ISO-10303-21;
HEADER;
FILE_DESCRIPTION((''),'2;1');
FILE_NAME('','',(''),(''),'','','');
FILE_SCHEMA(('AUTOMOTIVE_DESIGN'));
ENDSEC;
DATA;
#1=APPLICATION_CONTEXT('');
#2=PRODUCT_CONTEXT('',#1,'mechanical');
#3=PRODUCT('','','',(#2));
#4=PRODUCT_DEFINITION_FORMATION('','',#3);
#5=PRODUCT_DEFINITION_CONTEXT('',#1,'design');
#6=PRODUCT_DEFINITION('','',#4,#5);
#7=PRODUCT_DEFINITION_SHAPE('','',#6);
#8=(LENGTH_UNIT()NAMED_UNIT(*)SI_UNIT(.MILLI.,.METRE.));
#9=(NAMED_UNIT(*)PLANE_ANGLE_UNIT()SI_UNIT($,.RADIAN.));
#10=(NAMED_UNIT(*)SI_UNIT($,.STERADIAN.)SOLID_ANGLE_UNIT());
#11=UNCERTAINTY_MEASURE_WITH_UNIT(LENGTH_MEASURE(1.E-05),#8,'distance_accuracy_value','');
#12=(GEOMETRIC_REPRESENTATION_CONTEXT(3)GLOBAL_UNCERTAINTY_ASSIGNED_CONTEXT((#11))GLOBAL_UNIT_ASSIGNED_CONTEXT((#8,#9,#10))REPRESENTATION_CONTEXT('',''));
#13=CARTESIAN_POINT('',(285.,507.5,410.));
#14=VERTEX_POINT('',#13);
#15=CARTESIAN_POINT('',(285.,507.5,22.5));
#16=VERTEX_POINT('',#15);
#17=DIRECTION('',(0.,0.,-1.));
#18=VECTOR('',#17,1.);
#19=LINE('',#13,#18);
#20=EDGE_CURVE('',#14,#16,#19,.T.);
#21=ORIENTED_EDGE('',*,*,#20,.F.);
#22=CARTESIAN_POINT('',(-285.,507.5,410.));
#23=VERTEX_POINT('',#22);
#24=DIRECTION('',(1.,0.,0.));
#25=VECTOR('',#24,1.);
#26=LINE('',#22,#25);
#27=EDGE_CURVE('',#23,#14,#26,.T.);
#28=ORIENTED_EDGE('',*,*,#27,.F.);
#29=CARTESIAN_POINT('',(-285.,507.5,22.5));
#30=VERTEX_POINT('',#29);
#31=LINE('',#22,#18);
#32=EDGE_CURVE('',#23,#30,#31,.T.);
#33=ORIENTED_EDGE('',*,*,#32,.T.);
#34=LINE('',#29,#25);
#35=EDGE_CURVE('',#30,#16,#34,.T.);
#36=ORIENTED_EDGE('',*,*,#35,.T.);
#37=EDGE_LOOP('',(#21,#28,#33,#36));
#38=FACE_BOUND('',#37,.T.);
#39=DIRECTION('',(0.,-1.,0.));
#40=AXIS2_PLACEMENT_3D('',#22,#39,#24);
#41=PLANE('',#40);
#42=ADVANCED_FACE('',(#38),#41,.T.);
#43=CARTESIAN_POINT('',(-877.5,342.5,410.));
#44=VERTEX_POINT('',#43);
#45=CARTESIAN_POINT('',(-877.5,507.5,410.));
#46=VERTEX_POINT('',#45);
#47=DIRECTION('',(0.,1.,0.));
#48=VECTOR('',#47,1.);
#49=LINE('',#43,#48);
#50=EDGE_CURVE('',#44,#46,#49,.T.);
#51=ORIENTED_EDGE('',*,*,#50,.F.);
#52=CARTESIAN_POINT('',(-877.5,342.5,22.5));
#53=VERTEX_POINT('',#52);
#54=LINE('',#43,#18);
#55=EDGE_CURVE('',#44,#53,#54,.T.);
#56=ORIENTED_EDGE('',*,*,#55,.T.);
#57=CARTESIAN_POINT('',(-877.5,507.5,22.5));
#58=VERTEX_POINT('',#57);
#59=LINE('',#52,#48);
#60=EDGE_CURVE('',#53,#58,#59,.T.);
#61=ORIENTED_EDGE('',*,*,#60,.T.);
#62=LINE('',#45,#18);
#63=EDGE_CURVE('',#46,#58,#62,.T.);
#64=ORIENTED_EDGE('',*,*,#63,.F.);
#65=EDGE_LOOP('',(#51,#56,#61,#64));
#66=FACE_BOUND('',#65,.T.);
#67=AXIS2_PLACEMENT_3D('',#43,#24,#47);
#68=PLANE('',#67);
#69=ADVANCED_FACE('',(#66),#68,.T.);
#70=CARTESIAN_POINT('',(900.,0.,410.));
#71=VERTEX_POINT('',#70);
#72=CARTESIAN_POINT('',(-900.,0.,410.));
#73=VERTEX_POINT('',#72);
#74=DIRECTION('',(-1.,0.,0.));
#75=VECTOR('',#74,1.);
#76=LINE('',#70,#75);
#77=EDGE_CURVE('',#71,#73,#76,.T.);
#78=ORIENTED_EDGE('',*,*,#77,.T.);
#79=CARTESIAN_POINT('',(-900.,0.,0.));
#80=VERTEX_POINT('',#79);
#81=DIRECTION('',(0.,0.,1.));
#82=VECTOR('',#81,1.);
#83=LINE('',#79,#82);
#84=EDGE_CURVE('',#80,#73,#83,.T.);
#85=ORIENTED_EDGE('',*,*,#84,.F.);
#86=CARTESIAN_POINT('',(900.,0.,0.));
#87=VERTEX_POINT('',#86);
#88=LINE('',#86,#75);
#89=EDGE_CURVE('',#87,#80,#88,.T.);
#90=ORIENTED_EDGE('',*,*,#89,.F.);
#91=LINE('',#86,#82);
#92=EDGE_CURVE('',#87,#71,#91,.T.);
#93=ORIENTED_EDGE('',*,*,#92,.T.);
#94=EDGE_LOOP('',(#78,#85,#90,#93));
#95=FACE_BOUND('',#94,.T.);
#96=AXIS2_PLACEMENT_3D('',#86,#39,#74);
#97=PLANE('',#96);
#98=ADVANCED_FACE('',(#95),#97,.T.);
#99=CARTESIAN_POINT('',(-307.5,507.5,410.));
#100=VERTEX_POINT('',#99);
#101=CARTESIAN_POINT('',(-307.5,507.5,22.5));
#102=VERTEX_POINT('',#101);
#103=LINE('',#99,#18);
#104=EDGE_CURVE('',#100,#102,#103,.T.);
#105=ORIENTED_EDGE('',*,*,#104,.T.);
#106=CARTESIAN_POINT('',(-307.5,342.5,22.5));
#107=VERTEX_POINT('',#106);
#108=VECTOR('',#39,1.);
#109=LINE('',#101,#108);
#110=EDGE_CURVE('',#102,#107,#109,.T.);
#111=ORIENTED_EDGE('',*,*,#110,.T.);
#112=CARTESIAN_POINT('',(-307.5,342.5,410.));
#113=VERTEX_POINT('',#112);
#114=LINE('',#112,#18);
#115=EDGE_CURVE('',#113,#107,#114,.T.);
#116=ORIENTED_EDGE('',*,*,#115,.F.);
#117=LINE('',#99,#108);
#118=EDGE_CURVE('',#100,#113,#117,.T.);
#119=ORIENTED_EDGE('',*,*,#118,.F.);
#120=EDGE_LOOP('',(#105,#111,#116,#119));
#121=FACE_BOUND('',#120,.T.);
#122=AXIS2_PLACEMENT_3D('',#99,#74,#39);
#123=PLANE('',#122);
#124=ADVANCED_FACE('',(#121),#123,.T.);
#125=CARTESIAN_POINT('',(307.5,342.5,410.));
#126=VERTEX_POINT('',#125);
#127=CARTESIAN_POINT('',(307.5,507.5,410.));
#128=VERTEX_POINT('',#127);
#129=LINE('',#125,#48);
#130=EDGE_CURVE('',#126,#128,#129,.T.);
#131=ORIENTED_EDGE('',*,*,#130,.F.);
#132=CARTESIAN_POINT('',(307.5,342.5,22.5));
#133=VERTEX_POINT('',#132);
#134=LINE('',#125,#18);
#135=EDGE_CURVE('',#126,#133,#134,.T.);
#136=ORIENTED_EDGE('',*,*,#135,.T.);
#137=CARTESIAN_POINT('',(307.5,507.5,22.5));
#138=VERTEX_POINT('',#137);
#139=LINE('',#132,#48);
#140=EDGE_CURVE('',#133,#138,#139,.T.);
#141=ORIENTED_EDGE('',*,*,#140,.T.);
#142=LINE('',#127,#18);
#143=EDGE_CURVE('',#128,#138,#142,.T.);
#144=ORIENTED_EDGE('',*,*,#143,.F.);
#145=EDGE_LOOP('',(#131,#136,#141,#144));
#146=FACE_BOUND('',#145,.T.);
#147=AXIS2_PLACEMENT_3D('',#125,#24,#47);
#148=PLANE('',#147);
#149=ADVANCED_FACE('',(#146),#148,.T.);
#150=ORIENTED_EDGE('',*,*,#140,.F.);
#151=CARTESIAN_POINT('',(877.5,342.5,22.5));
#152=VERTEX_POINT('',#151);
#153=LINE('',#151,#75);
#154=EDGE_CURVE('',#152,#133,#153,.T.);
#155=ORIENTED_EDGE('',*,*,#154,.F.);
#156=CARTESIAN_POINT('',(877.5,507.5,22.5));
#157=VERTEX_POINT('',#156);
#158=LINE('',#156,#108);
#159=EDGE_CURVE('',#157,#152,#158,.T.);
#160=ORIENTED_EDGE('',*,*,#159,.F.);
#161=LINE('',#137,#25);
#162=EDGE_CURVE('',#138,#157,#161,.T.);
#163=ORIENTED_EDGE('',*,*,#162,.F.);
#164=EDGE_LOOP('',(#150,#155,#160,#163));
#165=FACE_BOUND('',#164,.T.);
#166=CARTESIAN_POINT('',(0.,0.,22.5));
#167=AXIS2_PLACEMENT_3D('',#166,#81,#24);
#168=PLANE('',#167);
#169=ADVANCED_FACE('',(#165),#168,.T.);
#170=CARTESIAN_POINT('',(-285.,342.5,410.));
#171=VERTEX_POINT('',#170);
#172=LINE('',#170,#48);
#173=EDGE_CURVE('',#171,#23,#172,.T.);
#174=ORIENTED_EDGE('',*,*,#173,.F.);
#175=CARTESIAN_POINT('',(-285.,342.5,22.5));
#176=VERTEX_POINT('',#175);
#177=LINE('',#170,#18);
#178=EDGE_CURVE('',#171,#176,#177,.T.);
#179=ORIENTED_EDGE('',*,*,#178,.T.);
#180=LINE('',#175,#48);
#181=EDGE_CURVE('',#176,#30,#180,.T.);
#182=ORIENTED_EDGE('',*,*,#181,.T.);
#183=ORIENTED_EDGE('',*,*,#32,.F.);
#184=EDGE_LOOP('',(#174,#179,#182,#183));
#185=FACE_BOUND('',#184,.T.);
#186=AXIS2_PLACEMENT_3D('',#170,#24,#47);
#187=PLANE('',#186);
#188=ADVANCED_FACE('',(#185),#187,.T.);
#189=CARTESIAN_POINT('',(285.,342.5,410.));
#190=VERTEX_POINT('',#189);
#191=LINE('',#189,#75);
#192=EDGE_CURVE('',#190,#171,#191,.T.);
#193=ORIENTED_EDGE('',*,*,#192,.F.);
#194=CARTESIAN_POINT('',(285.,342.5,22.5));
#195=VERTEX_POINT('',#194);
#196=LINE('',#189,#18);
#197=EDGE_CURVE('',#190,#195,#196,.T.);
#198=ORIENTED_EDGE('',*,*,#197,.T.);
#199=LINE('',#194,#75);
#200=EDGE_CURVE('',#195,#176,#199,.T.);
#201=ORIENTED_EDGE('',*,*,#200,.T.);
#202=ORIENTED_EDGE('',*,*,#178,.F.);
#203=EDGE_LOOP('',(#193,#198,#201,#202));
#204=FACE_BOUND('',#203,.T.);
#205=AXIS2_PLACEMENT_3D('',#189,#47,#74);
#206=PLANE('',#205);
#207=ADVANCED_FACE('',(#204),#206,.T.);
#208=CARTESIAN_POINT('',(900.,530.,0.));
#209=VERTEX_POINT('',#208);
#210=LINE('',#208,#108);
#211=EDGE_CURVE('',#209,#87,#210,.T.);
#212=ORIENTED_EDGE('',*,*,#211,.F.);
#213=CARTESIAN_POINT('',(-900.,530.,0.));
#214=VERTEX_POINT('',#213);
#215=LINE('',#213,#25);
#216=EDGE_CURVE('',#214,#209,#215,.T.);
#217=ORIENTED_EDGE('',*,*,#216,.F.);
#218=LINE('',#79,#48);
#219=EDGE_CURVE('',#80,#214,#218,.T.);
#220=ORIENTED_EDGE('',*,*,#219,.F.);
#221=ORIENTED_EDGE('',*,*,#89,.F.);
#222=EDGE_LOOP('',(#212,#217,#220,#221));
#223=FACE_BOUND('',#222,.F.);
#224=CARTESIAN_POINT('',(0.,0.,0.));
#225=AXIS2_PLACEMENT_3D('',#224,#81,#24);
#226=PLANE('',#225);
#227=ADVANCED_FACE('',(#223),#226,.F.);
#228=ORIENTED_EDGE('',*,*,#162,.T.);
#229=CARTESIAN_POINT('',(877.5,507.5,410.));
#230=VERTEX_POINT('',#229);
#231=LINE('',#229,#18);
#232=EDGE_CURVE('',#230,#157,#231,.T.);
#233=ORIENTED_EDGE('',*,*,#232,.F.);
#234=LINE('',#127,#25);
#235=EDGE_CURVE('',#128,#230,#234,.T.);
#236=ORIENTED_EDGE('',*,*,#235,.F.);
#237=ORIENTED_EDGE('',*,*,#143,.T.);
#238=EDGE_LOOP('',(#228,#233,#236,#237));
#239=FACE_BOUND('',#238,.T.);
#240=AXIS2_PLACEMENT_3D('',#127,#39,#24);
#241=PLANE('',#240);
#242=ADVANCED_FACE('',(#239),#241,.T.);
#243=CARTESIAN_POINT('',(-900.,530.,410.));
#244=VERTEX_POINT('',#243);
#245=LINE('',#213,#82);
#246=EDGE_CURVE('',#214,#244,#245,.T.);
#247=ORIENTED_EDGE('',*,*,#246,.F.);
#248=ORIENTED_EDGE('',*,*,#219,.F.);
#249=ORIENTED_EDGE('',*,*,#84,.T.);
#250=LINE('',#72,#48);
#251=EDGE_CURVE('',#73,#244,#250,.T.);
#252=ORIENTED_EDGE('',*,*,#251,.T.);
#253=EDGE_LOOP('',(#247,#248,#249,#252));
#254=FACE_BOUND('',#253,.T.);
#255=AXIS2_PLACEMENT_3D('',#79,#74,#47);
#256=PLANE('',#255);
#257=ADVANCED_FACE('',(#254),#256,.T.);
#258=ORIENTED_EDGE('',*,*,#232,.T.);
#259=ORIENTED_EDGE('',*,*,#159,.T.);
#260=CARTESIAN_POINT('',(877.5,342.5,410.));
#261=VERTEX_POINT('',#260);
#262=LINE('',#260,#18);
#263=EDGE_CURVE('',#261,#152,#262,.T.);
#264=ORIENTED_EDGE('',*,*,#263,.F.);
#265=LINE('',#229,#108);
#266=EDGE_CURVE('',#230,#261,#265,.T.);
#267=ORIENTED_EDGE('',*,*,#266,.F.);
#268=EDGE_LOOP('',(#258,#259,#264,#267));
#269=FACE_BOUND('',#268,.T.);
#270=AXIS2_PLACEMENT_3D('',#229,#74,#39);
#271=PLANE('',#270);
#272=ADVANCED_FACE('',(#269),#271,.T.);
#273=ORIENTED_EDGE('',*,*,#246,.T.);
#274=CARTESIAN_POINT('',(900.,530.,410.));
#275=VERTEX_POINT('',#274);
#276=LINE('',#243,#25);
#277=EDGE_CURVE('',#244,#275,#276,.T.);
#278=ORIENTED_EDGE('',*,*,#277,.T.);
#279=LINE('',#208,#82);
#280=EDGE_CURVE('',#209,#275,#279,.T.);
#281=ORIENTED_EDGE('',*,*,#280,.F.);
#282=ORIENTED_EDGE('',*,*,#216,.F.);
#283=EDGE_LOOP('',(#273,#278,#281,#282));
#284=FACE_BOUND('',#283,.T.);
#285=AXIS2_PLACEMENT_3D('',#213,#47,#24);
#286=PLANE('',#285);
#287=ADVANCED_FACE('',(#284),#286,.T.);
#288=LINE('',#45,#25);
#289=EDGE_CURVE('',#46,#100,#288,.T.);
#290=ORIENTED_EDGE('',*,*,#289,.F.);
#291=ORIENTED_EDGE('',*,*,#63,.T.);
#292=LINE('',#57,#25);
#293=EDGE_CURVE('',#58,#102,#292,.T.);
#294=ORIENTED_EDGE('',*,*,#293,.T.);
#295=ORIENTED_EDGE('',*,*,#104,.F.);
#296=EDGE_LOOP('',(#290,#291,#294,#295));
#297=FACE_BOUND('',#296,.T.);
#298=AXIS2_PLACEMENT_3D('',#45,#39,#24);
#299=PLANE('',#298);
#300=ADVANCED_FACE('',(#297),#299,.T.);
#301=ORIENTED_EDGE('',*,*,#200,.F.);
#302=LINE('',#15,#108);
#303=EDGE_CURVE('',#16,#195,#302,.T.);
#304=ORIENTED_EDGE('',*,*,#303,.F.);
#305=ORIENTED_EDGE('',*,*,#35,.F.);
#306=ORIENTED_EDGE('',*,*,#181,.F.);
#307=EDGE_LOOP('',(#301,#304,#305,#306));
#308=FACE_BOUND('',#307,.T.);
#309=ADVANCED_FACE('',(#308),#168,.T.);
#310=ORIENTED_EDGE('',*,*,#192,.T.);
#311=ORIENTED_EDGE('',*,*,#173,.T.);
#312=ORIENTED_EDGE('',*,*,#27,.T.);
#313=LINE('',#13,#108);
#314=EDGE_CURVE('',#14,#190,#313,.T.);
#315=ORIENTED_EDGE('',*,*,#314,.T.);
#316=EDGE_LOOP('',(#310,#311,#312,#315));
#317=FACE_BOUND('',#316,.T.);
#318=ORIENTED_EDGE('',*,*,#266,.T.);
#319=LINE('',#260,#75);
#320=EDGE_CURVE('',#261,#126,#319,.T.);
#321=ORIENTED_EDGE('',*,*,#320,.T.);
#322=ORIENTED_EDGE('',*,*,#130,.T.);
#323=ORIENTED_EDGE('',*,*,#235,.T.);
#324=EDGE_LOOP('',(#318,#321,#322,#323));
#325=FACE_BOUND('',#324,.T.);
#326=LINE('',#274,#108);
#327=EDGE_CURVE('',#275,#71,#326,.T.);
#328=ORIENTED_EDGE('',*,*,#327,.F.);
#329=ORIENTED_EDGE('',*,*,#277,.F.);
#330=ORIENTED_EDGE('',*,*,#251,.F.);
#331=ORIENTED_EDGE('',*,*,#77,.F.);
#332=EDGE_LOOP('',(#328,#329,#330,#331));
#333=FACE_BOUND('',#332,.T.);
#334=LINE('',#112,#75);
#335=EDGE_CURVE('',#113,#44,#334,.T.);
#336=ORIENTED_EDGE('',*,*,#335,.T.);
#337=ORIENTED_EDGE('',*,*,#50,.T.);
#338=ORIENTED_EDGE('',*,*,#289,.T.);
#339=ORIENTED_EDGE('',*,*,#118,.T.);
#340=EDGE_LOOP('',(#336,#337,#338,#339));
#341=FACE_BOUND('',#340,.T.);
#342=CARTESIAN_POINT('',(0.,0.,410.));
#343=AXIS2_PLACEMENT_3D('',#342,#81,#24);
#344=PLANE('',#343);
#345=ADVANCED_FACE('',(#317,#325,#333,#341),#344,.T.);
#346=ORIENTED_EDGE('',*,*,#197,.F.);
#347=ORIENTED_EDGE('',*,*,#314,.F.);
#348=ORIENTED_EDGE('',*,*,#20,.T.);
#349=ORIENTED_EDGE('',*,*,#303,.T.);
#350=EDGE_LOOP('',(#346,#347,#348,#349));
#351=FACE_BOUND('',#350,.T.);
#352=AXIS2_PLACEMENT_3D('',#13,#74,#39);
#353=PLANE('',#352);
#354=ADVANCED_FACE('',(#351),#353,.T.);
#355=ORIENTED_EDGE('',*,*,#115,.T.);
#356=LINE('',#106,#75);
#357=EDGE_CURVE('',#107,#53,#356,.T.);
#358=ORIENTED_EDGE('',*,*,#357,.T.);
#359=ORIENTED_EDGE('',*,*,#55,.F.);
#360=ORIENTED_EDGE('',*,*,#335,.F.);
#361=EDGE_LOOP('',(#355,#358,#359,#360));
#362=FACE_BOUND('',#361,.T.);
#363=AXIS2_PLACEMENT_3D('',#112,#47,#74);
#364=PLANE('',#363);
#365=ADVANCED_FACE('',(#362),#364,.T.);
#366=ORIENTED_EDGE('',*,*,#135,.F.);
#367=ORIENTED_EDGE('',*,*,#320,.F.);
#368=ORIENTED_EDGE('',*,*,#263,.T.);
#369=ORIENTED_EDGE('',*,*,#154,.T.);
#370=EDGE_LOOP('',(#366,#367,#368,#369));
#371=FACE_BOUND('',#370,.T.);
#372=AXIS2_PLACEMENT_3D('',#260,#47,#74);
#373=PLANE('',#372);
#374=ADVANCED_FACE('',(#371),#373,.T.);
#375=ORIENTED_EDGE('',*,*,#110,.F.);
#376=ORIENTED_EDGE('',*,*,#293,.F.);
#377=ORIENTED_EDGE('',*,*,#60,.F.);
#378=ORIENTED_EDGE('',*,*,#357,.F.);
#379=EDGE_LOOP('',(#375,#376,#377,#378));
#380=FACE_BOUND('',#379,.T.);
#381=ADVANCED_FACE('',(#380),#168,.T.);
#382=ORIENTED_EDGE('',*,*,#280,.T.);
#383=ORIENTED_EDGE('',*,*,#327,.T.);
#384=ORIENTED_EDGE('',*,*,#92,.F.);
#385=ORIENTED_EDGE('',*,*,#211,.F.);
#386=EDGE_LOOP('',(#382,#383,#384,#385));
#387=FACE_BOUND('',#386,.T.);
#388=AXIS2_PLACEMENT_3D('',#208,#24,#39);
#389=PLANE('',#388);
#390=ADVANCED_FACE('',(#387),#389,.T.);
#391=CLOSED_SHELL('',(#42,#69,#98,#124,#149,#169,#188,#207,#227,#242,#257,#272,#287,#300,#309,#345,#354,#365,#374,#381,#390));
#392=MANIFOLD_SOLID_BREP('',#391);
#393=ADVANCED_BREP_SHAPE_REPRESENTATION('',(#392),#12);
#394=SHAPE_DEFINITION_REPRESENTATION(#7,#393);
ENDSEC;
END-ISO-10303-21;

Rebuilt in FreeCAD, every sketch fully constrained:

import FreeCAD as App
import Part
import Sketcher


def add_polygon(sketch, points):
    """Adds a closed chain of lines whose ends are joined by coincident constraints."""
    first, n = sketch.GeometryCount, len(points)
    for a, b in zip(points, points[1:] + points[:1]):
        sketch.addGeometry(Part.LineSegment(App.Vector(*a, 0), App.Vector(*b, 0)), False)
    for i in range(n):
        sketch.addConstraint(Sketcher.Constraint("Coincident", first + i, 2, first + (i + 1) % n, 1))

doc = App.newDocument("Part")
body = doc.addObject("PartDesign::Body", "Body")

# Sketch on XY plane
sketch1 = body.newObject("Sketcher::SketchObject", "Sketch")
sketch1.AttachmentSupport = (doc.getObject("XY_Plane"), [""])
sketch1.MapMode = "FlatFace"
add_polygon(sketch1, [(900, 530), (-900, 530), (-900, 0), (900, 0)])  # lines 0-3
sketch1.addConstraint([
    Sketcher.Constraint("Horizontal", 0),
    Sketcher.Constraint("Vertical", 1),
    Sketcher.Constraint("Horizontal", 2),
    Sketcher.Constraint("Vertical", 3),
    Sketcher.Constraint("Symmetric", 1, 2, 2, 2, -1, 1),
    Sketcher.Constraint("DistanceX", 0, 2, 0, 1, 1800.0),
    Sketcher.Constraint("DistanceY", 1, 2, 1, 1, 530.0),
])
pad1 = body.newObject("PartDesign::Pad", "Pad")
pad1.Profile = sketch1
pad1.Length = 410

# Sketch on XY plane
sketch2 = body.newObject("Sketcher::SketchObject", "Sketch001")
sketch2.AttachmentSupport = (doc.getObject("XY_Plane"), [""])
sketch2.MapMode = "FlatFace"
sketch2.AttachmentOffset = App.Placement(App.Vector(0, 0, 410), App.Rotation())
add_polygon(sketch2, [(-307.5, 507.5), (-877.5, 507.5), (-877.5, 342.5), (-307.5, 342.5)])  # lines 0-3
add_polygon(sketch2, [(285, 507.5), (-285, 507.5), (-285, 342.5), (285, 342.5)])  # lines 4-7
add_polygon(sketch2, [(877.5, 507.5), (307.5, 507.5), (307.5, 342.5), (877.5, 342.5)])  # lines 8-11
sketch2.addConstraint([
    Sketcher.Constraint("Horizontal", 0),
    Sketcher.Constraint("Vertical", 1),
    Sketcher.Constraint("Horizontal", 2),
    Sketcher.Constraint("Vertical", 3),
    Sketcher.Constraint("Horizontal", 4),
    Sketcher.Constraint("Vertical", 5),
    Sketcher.Constraint("Horizontal", 6),
    Sketcher.Constraint("Vertical", 7),
    Sketcher.Constraint("Horizontal", 8),
    Sketcher.Constraint("Vertical", 9),
    Sketcher.Constraint("Horizontal", 10),
    Sketcher.Constraint("Vertical", 11),
    Sketcher.Constraint("Symmetric", 3, 2, 8, 2, -2),
    Sketcher.Constraint("Symmetric", 1, 2, 10, 2, -2),
    Sketcher.Constraint("Horizontal", 3, 2, 4, 2),
    Sketcher.Constraint("Horizontal", 2, 2, 5, 2),
    Sketcher.Constraint("Equal", 2, 4),
    Sketcher.Constraint("DistanceX", 0, 2, 0, 1, 570.0),
    Sketcher.Constraint("DistanceY", 1, 2, 1, 1, 165.0),
    Sketcher.Constraint("DistanceX", 3, 2, 4, 2, 22.5),
    Sketcher.Constraint("DistanceX", 7, 2, 8, 2, 22.5),
    Sketcher.Constraint("DistanceY", -1, 1, 0, 2, 507.5),
])
pocket1 = body.newObject("PartDesign::Pocket", "Pocket")
pocket1.Profile = sketch2
pocket1.Length = 387.5

doc.recompute()
